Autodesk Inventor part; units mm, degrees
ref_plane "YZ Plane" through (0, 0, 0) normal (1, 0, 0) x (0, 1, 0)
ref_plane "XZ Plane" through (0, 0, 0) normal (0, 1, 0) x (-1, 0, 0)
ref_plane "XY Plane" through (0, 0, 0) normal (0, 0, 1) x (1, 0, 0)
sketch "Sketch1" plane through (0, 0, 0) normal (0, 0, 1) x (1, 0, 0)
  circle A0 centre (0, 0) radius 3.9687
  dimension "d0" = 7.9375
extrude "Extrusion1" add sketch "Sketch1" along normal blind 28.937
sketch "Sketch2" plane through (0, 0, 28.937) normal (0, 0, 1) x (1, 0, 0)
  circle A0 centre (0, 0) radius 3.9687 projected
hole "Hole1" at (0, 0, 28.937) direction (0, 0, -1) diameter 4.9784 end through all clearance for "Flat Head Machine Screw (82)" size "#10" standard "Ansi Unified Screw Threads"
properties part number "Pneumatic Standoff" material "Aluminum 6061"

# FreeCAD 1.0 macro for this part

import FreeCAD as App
import Part
import Sketcher
Q = App.Units.Quantity

doc = App.newDocument("Part")
body = doc.addObject("PartDesign::Body", "Body")

sketch1 = doc.addObject("Sketcher::SketchObject", "Sketch")
body.addObject(sketch1)
sketch1.AttachmentSupport = (doc.XY_Plane, [""])
sketch1.MapMode = "FlatFace"
sketch1.addGeometry(Part.Circle(App.Vector(0, 0, 0), App.Vector(0, 0, 1), 3.9687), False)
sketch1.addConstraint([
    Sketcher.Constraint("Coincident", 0, 3, -1, 1),
    Sketcher.Constraint("Diameter", 0, Q("0.3125 in")),
])
pad1 = doc.addObject("PartDesign::Pad", "Pad")
body.addObject(pad1)
pad1.Profile = sketch1
pad1.Length = 28.937

sketch2 = doc.addObject("Sketcher::SketchObject", "Sketch001")
body.addObject(sketch2)
sketch2.AttachmentSupport = (doc.XY_Plane, [""])
sketch2.MapMode = "FlatFace"
sketch2.AttachmentOffset = App.Placement(App.Vector(0, 0, 28.937), App.Rotation())
sketch2.addGeometry(Part.Circle(App.Vector(0, 0, 0), App.Vector(0, 0, 1), 2.4892), False)
sketch2.addConstraint([
    Sketcher.Constraint("Coincident", 0, 3, -1, 1),
    Sketcher.Constraint("Diameter", 0, Q("0.196 in")),
])
doc.recompute()
hole = doc.addObject("PartDesign::Hole", "Hole")
body.addObject(hole)
hole.Profile = sketch2
hole.ThreadType = "None"
hole.Diameter = Q("0.196 in")
hole.DepthType = "ThroughAll"

doc.recompute()
